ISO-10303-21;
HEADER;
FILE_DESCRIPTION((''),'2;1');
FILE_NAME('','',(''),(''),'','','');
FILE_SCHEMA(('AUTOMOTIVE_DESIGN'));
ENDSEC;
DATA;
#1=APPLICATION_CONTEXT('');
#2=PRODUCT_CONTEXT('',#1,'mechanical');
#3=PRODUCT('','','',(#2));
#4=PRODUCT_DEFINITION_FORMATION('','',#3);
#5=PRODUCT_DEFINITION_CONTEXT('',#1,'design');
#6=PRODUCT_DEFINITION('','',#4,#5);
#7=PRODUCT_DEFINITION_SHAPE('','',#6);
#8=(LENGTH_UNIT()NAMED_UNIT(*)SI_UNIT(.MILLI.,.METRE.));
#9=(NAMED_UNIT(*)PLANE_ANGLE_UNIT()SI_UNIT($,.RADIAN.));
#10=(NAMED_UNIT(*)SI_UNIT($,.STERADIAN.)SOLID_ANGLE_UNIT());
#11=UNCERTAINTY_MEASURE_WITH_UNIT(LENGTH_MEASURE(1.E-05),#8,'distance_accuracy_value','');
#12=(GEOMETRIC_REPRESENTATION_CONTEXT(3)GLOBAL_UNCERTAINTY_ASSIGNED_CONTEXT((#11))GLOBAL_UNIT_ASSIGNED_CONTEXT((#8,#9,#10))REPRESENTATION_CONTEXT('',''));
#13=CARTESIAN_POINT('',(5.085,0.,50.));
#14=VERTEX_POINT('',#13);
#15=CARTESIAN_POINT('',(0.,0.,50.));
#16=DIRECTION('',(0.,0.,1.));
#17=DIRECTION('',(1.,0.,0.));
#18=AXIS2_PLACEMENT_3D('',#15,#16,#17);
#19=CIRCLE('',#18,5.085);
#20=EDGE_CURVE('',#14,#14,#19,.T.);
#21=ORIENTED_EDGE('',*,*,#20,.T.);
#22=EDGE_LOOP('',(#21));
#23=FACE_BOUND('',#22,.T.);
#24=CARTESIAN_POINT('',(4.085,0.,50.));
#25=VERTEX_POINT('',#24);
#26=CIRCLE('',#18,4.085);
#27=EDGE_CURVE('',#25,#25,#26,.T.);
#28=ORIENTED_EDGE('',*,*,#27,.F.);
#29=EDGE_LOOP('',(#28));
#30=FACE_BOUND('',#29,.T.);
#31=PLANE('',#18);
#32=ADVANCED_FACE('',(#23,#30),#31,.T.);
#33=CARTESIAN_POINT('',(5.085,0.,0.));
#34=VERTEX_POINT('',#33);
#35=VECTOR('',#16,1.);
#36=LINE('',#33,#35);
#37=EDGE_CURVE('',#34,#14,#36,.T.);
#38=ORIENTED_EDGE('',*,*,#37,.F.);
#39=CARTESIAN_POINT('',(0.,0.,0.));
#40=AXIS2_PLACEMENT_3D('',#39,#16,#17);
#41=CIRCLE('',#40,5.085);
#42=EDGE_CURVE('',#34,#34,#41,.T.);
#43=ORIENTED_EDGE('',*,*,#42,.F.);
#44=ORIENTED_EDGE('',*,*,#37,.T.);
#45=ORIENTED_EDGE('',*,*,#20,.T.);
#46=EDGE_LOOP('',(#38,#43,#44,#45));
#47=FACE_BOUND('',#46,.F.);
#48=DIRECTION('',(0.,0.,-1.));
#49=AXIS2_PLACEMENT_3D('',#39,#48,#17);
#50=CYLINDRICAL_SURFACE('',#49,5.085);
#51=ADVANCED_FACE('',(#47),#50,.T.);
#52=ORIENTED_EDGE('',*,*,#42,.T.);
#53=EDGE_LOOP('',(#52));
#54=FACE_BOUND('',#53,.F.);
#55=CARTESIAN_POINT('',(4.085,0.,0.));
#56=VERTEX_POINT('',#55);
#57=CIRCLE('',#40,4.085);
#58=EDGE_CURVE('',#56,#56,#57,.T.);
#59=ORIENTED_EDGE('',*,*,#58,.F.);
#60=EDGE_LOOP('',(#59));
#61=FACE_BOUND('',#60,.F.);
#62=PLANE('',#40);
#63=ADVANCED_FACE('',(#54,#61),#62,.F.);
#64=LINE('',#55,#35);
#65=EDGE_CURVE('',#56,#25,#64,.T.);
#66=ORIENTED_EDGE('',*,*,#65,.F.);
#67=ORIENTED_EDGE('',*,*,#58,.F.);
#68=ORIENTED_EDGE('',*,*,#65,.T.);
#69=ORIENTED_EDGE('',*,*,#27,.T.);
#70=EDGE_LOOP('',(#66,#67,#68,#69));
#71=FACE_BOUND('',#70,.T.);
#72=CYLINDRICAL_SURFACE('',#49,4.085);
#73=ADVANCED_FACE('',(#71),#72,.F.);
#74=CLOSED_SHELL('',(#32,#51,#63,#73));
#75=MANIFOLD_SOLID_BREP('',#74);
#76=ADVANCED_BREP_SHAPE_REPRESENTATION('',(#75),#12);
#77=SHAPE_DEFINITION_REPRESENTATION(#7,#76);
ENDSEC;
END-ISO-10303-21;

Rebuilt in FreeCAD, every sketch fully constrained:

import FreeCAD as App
import Part
import Sketcher

V = App.Vector
Q = App.Units.Quantity

doc = App.newDocument("Part")
body = doc.addObject("PartDesign::Body", "Body")

# Sketch on XY plane
sketch1 = doc.addObject("Sketcher::SketchObject", "Sketch")
body.addObject(sketch1)
sketch1.AttachmentSupport = (doc.XY_Plane, [""])
sketch1.MapMode = "FlatFace"
sketch1.addGeometry(Part.Circle(V(0, 0, 0), V(0, 0, 1), 5.1), False)
sketch1.addGeometry(Part.Circle(V(0, 0, 0), V(0, 0, 1), 4.1), False)
sketch1.addConstraint(Sketcher.Constraint("Coincident", 0, 3, -1, 1))
sketch1.addConstraint(Sketcher.Constraint("Coincident", 1, 3, -1, 1))
sketch1.addConstraint(Sketcher.Constraint("Diameter", 0, Q("10.17 mm")))
sketch1.addConstraint(Sketcher.Constraint("Diameter", 1, Q("8.17 mm")))
pad1 = doc.addObject("PartDesign::Pad", "Pad")
body.addObject(pad1)
pad1.Profile = sketch1
pad1.Length = 50

doc.recompute()
